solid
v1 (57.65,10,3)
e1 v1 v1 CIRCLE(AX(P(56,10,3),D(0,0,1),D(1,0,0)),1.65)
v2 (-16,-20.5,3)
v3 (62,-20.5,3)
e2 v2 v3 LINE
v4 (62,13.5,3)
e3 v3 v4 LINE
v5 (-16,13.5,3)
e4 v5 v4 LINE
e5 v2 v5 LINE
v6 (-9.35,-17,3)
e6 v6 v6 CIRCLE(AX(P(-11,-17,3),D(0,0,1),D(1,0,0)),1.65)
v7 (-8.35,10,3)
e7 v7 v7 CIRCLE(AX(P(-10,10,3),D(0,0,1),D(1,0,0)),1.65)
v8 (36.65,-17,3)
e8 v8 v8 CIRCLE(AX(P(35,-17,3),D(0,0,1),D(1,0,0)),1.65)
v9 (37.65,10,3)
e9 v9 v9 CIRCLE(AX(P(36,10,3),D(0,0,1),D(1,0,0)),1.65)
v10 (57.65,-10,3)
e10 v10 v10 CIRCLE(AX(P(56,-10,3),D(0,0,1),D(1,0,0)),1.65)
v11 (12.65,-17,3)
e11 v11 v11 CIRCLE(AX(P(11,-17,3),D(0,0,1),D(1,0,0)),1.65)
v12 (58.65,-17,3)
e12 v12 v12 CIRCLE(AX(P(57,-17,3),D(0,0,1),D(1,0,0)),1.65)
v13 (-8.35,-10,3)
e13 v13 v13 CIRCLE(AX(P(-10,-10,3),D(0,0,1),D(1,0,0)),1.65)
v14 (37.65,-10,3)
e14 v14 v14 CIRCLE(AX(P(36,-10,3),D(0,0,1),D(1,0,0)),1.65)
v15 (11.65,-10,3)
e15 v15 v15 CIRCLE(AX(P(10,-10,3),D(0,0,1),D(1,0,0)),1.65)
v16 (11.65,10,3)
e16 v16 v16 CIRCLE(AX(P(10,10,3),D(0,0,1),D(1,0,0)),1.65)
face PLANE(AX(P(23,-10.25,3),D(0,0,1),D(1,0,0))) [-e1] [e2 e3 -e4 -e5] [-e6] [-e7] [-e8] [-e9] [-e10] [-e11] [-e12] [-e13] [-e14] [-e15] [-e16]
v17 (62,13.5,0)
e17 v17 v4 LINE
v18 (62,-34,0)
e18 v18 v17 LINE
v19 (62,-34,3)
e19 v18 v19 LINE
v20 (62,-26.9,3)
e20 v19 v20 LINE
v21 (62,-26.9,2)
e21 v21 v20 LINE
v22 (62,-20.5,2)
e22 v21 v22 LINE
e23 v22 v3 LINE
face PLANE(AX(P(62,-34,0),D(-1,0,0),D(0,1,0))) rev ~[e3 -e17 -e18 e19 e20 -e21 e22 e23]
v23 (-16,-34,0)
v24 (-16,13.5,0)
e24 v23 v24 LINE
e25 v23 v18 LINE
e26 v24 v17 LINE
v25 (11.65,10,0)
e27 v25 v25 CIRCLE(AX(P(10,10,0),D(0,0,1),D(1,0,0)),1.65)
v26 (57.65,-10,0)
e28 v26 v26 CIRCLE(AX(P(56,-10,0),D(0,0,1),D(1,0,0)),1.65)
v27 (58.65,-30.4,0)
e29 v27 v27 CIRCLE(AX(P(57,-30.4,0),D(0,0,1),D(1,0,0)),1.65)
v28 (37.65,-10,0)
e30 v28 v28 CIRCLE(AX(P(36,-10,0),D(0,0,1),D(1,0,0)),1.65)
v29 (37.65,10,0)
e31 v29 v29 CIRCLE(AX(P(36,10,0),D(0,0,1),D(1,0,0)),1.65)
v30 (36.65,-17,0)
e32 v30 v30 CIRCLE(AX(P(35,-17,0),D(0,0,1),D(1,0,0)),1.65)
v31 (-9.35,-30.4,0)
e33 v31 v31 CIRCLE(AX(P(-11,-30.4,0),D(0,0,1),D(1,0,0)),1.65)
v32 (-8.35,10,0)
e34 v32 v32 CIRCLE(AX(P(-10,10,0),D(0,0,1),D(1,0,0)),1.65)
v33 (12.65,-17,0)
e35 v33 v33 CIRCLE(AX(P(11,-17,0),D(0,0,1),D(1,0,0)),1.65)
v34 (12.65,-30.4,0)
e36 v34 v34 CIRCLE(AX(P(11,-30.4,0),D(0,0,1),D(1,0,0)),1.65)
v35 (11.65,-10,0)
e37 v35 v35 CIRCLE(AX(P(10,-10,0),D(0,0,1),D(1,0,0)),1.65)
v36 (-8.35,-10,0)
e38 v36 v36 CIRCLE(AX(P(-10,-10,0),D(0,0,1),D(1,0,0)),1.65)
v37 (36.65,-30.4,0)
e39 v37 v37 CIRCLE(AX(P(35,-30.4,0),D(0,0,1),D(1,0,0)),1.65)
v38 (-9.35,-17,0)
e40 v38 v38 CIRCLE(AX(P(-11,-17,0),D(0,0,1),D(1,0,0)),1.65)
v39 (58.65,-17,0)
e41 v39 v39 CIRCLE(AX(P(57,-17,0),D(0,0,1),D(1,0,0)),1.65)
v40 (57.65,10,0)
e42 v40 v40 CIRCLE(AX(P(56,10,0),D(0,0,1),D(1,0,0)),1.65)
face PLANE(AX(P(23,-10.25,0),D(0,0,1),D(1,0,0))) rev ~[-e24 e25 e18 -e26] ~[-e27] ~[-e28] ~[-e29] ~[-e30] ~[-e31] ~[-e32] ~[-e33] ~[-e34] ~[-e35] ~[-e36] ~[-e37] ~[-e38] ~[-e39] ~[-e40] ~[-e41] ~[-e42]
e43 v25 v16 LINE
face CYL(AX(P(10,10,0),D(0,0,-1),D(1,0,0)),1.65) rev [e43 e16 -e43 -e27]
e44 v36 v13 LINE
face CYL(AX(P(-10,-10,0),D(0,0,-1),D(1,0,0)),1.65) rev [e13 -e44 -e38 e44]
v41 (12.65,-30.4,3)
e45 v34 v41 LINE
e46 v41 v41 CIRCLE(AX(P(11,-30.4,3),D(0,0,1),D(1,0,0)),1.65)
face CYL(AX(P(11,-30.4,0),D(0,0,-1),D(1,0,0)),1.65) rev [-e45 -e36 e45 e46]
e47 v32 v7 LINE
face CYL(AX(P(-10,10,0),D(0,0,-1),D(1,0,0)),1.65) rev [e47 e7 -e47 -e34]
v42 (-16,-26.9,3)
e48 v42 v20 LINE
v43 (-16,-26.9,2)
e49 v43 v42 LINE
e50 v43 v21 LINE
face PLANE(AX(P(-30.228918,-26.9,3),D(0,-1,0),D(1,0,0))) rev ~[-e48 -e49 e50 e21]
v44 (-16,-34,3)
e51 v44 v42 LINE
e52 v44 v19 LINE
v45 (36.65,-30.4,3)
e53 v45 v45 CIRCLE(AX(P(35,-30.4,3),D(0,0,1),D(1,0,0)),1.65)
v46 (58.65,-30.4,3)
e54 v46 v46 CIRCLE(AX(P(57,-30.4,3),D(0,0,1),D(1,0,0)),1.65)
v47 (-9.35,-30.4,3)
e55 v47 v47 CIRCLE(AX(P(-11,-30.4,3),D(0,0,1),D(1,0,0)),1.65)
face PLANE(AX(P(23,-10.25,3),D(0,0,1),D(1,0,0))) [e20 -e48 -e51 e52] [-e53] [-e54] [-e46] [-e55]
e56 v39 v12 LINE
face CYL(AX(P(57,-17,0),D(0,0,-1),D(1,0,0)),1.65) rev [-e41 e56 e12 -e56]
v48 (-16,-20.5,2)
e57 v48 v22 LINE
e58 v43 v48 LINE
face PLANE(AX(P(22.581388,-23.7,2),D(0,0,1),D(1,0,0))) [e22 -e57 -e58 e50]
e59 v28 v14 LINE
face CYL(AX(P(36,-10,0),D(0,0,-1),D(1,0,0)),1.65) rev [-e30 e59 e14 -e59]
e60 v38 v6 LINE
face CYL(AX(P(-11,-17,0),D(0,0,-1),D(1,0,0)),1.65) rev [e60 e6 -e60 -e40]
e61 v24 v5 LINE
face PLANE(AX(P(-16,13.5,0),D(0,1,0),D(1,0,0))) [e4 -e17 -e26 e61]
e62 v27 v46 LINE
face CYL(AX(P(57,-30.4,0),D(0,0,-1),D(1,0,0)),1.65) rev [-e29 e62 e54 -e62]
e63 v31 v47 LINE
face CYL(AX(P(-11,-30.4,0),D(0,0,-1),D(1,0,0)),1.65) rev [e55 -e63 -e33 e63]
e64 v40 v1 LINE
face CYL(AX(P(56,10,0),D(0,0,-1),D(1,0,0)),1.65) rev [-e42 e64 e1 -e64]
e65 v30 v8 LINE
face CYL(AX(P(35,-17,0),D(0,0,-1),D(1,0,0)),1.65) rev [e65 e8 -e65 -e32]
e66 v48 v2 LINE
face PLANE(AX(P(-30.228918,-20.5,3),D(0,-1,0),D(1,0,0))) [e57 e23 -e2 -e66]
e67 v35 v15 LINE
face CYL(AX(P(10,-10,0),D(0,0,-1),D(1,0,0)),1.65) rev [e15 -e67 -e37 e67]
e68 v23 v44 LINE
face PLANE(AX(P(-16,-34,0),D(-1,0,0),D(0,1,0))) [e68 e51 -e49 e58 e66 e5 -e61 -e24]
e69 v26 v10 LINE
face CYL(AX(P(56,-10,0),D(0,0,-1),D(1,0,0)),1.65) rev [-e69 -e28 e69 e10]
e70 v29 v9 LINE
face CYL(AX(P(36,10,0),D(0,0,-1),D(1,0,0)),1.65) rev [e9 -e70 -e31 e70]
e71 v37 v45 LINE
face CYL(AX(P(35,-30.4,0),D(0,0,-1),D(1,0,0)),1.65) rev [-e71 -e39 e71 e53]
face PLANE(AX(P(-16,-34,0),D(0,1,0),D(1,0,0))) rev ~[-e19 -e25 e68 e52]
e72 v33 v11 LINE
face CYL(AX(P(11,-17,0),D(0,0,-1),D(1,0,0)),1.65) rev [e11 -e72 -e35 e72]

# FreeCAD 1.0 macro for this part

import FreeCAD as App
import Part
import Sketcher

doc = App.newDocument("Part")
body = doc.addObject("PartDesign::Body", "Body")

# Sketch on XY plane
sketch1 = body.newObject("Sketcher::SketchObject", "Sketch")
sketch1.AttachmentSupport = (doc.getObject("XY_Plane"), [""])
sketch1.MapMode = "FlatFace"
sketch1.addGeometry(Part.LineSegment(App.Vector(-16, 13.5, 0), App.Vector(-16, -34, 0)), False)
sketch1.addGeometry(Part.LineSegment(App.Vector(-16, -34, 0), App.Vector(62, -34, 0)), False)
sketch1.addGeometry(Part.LineSegment(App.Vector(62, -34, 0), App.Vector(62, 13.5, 0)), False)
sketch1.addGeometry(Part.LineSegment(App.Vector(62, 13.5, 0), App.Vector(-16, 13.5, 0)), False)
sketch1.addGeometry(Part.Circle(App.Vector(-11, -30.4, 0), App.Vector(0, 0, 1), 1.6), False)
sketch1.addGeometry(Part.Circle(App.Vector(11, -30.4, 0), App.Vector(0, 0, 1), 1.6), False)
sketch1.addGeometry(Part.Circle(App.Vector(-11, -17, 0), App.Vector(0, 0, 1), 1.6), False)
sketch1.addGeometry(Part.Circle(App.Vector(11, -17, 0), App.Vector(0, 0, 1), 1.6), False)
sketch1.addGeometry(Part.Circle(App.Vector(35, -30.4, 0), App.Vector(0, 0, 1), 1.6), False)
sketch1.addGeometry(Part.Circle(App.Vector(57, -30.4, 0), App.Vector(0, 0, 1), 1.6), False)
sketch1.addGeometry(Part.Circle(App.Vector(35, -17, 0), App.Vector(0, 0, 1), 1.6), False)
sketch1.addGeometry(Part.Circle(App.Vector(57, -17, 0), App.Vector(0, 0, 1), 1.6), False)
sketch1.addGeometry(Part.Circle(App.Vector(-10, -10, 0), App.Vector(0, 0, 1), 1.6), False)
sketch1.addGeometry(Part.Circle(App.Vector(10, -10, 0), App.Vector(0, 0, 1), 1.6), False)
sketch1.addGeometry(Part.Circle(App.Vector(-10, 10, 0), App.Vector(0, 0, 1), 1.6), False)
sketch1.addGeometry(Part.Circle(App.Vector(10, 10, 0), App.Vector(0, 0, 1), 1.6), False)
sketch1.addGeometry(Part.Circle(App.Vector(36, -10, 0), App.Vector(0, 0, 1), 1.6), False)
sketch1.addGeometry(Part.Circle(App.Vector(56, -10, 0), App.Vector(0, 0, 1), 1.6), False)
sketch1.addGeometry(Part.Circle(App.Vector(36, 10, 0), App.Vector(0, 0, 1), 1.6), False)
sketch1.addGeometry(Part.Circle(App.Vector(56, 10, 0), App.Vector(0, 0, 1), 1.6), False)
sketch1.addConstraint(Sketcher.Constraint("Coincident", 0, 2, 1, 1))
sketch1.addConstraint(Sketcher.Constraint("Coincident", 1, 2, 2, 1))
sketch1.addConstraint(Sketcher.Constraint("Coincident", 2, 2, 3, 1))
sketch1.addConstraint(Sketcher.Constraint("Coincident", 3, 2, 0, 1))
sketch1.addConstraint(Sketcher.Constraint("Vertical", 0))
sketch1.addConstraint(Sketcher.Constraint("Horizontal", 1))
sketch1.addConstraint(Sketcher.Constraint("Vertical", 2))
sketch1.addConstraint(Sketcher.Constraint("Horizontal", 3))
sketch1.addConstraint(Sketcher.Constraint("Equal", 4, 5))
sketch1.addConstraint(Sketcher.Constraint("Equal", 5, 6))
sketch1.addConstraint(Sketcher.Constraint("Equal", 6, 7))
sketch1.addConstraint(Sketcher.Constraint("Equal", 7, 8))
sketch1.addConstraint(Sketcher.Constraint("Equal", 8, 9))
sketch1.addConstraint(Sketcher.Constraint("Equal", 9, 10))
sketch1.addConstraint(Sketcher.Constraint("Equal", 10, 11))
sketch1.addConstraint(Sketcher.Constraint("Equal", 11, 12))
sketch1.addConstraint(Sketcher.Constraint("Equal", 12, 13))
sketch1.addConstraint(Sketcher.Constraint("Equal", 13, 14))
sketch1.addConstraint(Sketcher.Constraint("Equal", 14, 15))
sketch1.addConstraint(Sketcher.Constraint("Equal", 15, 16))
sketch1.addConstraint(Sketcher.Constraint("Equal", 16, 17))
sketch1.addConstraint(Sketcher.Constraint("Equal", 17, 18))
sketch1.addConstraint(Sketcher.Constraint("Equal", 18, 19))
sketch1.addConstraint(Sketcher.Constraint("Symmetric", 13, 3, 14, 3, -1, 1))
sketch1.addConstraint(Sketcher.Constraint("Symmetric", 12, 3, 15, 3, -1, 1))
sketch1.addConstraint(Sketcher.Constraint("Symmetric", 4, 3, 5, 3, -2))
sketch1.addConstraint(Sketcher.Constraint("Symmetric", 6, 3, 7, 3, -2))
sketch1.addConstraint(Sketcher.Constraint("Symmetric", 12, 3, 13, 3, -2))
sketch1.addConstraint(Sketcher.Constraint("Symmetric", 16, 3, 18, 3, -1))
sketch1.addConstraint(Sketcher.Constraint("Symmetric", 17, 3, 19, 3, -1))
sketch1.addConstraint(Sketcher.Constraint("Horizontal", 5, 3, 8, 3))
sketch1.addConstraint(Sketcher.Constraint("Horizontal", 8, 3, 9, 3))
sketch1.addConstraint(Sketcher.Constraint("Horizontal", 7, 3, 10, 3))
sketch1.addConstraint(Sketcher.Constraint("Horizontal", 10, 3, 11, 3))
sketch1.addConstraint(Sketcher.Constraint("Horizontal", 13, 3, 16, 3))
sketch1.addConstraint(Sketcher.Constraint("Horizontal", 16, 3, 17, 3))
sketch1.addConstraint(Sketcher.Constraint("Vertical", 4, 3, 6, 3))
sketch1.addConstraint(Sketcher.Constraint("Vertical", 8, 3, 10, 3))
sketch1.addConstraint(Sketcher.Constraint("Vertical", 9, 3, 11, 3))
sketch1.addConstraint(Sketcher.Constraint("Diameter", 4, 3.3))
sketch1.addConstraint(Sketcher.Constraint("DistanceX", 1, 1, 1, 2, 78.0))
sketch1.addConstraint(Sketcher.Constraint("DistanceY", 0, 2, 0, 1, 47.5))
sketch1.addConstraint(Sketcher.Constraint("DistanceX", 4, 3, -1, 1, 11.0))
sketch1.addConstraint(Sketcher.Constraint("DistanceY", 6, 3, -1, 1, 17.0))
sketch1.addConstraint(Sketcher.Constraint("DistanceX", -1, 1, 8, 3, 35.0))
sketch1.addConstraint(Sketcher.Constraint("DistanceX", -1, 1, 9, 3, 57.0))
sketch1.addConstraint(Sketcher.Constraint("DistanceX", 12, 3, -1, 1, 10.0))
sketch1.addConstraint(Sketcher.Constraint("DistanceY", 12, 3, -1, 1, 10.0))
sketch1.addConstraint(Sketcher.Constraint("DistanceX", -1, 1, 16, 3, 36.0))
sketch1.addConstraint(Sketcher.Constraint("DistanceX", -1, 1, 17, 3, 56.0))
sketch1.addConstraint(Sketcher.Constraint("DistanceX", 0, 2, -1, 1, 16.0))
sketch1.addConstraint(Sketcher.Constraint("DistanceY", 0, 2, -1, 1, 34.0))
sketch1.addConstraint(Sketcher.Constraint("DistanceY", 4, 3, -1, 1, 30.4))
pad1 = body.newObject("PartDesign::Pad", "Pad")
pad1.Profile = sketch1
pad1.Length = 3

# Sketch on XY plane
sketch2 = body.newObject("Sketcher::SketchObject", "Sketch001")
sketch2.AttachmentSupport = (doc.getObject("XY_Plane"), [""])
sketch2.MapMode = "FlatFace"
sketch2.AttachmentOffset = App.Placement(App.Vector(0, 0, 3), App.Rotation())
sketch2.addGeometry(Part.LineSegment(App.Vector(-30, -20, 0), App.Vector(-30, -27, 0)), False)
sketch2.addGeometry(Part.LineSegment(App.Vector(-30, -27, 0), App.Vector(75, -27, 0)), False)
sketch2.addGeometry(Part.LineSegment(App.Vector(75, -27, 0), App.Vector(75, -20, 0)), False)
sketch2.addGeometry(Part.LineSegment(App.Vector(75, -20, 0), App.Vector(-30, -20, 0)), False)
sketch2.addConstraint(Sketcher.Constraint("Coincident", 0, 2, 1, 1))
sketch2.addConstraint(Sketcher.Constraint("Coincident", 1, 2, 2, 1))
sketch2.addConstraint(Sketcher.Constraint("Coincident", 2, 2, 3, 1))
sketch2.addConstraint(Sketcher.Constraint("Coincident", 3, 2, 0, 1))
sketch2.addConstraint(Sketcher.Constraint("Vertical", 0))
sketch2.addConstraint(Sketcher.Constraint("Horizontal", 1))
sketch2.addConstraint(Sketcher.Constraint("Vertical", 2))
sketch2.addConstraint(Sketcher.Constraint("Horizontal", 3))
sketch2.addConstraint(Sketcher.Constraint("DistanceY", 0, 2, 0, 1, 6.4))
sketch2.addConstraint(Sketcher.Constraint("DistanceY", 0, 2, -1, 1, 26.9))
sketch2.addConstraint(Sketcher.Constraint("DistanceX", 1, 1, 1, 2, 105.620613))
sketch2.addConstraint(Sketcher.Constraint("DistanceX", 0, 2, -1, 1, 30.228918))
pocket1 = body.newObject("PartDesign::Pocket", "Pocket")
pocket1.Profile = sketch2
pocket1.Length = 1

doc.recompute()
